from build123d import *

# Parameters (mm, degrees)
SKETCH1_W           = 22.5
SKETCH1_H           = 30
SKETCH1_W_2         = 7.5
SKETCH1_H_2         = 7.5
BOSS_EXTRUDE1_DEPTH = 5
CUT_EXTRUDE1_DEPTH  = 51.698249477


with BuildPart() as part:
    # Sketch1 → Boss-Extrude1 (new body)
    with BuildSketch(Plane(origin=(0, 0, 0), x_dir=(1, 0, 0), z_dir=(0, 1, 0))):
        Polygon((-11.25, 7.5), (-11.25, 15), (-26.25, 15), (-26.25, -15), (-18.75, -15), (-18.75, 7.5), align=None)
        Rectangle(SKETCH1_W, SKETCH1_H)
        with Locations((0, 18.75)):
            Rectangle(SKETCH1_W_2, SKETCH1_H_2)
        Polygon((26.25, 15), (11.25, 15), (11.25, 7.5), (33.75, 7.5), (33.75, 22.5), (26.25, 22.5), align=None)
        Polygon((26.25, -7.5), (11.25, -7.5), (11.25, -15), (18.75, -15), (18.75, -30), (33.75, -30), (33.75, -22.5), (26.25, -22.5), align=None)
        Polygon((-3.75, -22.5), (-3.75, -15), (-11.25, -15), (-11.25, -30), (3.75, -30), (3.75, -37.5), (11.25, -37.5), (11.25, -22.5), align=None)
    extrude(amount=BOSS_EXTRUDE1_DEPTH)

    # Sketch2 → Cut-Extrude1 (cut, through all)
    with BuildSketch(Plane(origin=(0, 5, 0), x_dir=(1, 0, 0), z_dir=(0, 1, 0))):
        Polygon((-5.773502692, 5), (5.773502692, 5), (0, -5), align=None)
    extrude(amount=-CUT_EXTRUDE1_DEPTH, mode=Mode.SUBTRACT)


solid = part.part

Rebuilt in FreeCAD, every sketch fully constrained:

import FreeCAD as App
import Part
import Sketcher

V = App.Vector
Q = App.Units.Quantity

doc = App.newDocument("Part")
params = doc.addObject("Spreadsheet::Sheet", "Params")
for row, (alias, value) in enumerate([
    ("sketch1_width", "15 mm"),
    ("pad1_length", "5 mm"),
], start=1):
    params.set(f"A{row}", alias)
    params.set(f"B{row}", "=" + value)
    params.setAlias(f"B{row}", alias)

body = doc.addObject("PartDesign::Body", "Body")

# Sketch on XZ plane
sketch1 = body.newObject("Sketcher::SketchObject", "Sketch")
sketch1.AttachmentSupport = (doc.getObject("XZ_Plane"), [""])
sketch1.MapMode = "FlatFace"
sketch1.addGeometry(Part.LineSegment(V(-26, -15, 0), V(-26, 15, 0)), False)
sketch1.addGeometry(Part.LineSegment(V(-26, 15, 0), V(-19, 15, 0)), False)
sketch1.addGeometry(Part.LineSegment(V(-19, 15, 0), V(-19, -8, 0)), False)
sketch1.addGeometry(Part.LineSegment(V(-19, -8, 0), V(-11, -8, 0)), False)
sketch1.addGeometry(Part.LineSegment(V(-11, -8, 0), V(-11, 30, 0)), False)
sketch1.addGeometry(Part.LineSegment(V(-11, 30, 0), V(4, 30, 0)), False)
sketch1.addGeometry(Part.LineSegment(V(4, 30, 0), V(4, 38, 0)), False)
sketch1.addGeometry(Part.LineSegment(V(4, 38, 0), V(11, 38, 0)), False)
sketch1.addGeometry(Part.LineSegment(V(11, 38, 0), V(11, 22, 0)), False)
sketch1.addGeometry(Part.LineSegment(V(11, 22, 0), V(-4, 22, 0)), False)
sketch1.addGeometry(Part.LineSegment(V(-4, 22, 0), V(-4, 15, 0)), False)
sketch1.addGeometry(Part.LineSegment(V(-4, 15, 0), V(19, 15, 0)), False)
sketch1.addGeometry(Part.LineSegment(V(19, 15, 0), V(19, 30, 0)), False)
sketch1.addGeometry(Part.LineSegment(V(19, 30, 0), V(34, 30, 0)), False)
sketch1.addGeometry(Part.LineSegment(V(34, 30, 0), V(34, 22, 0)), False)
sketch1.addGeometry(Part.LineSegment(V(34, 22, 0), V(26, 22, 0)), False)
sketch1.addGeometry(Part.LineSegment(V(26, 22, 0), V(26, 8, 0)), False)
sketch1.addGeometry(Part.LineSegment(V(26, 8, 0), V(11, 8, 0)), False)
sketch1.addGeometry(Part.LineSegment(V(11, 8, 0), V(11, -8, 0)), False)
sketch1.addGeometry(Part.LineSegment(V(11, -8, 0), V(34, -8, 0)), False)
sketch1.addGeometry(Part.LineSegment(V(34, -8, 0), V(34, -22, 0)), False)
sketch1.addGeometry(Part.LineSegment(V(34, -22, 0), V(26, -22, 0)), False)
sketch1.addGeometry(Part.LineSegment(V(26, -22, 0), V(26, -15, 0)), False)
sketch1.addGeometry(Part.LineSegment(V(26, -15, 0), V(4, -15, 0)), False)
sketch1.addGeometry(Part.LineSegment(V(4, -15, 0), V(4, -22, 0)), False)
sketch1.addGeometry(Part.LineSegment(V(4, -22, 0), V(-4, -22, 0)), False)
sketch1.addGeometry(Part.LineSegment(V(-4, -22, 0), V(-4, -15, 0)), False)
sketch1.addGeometry(Part.LineSegment(V(-4, -15, 0), V(-26, -15, 0)), False)
sketch1.addConstraint(Sketcher.Constraint("Coincident", 0, 2, 1, 1))
sketch1.addConstraint(Sketcher.Constraint("Coincident", 1, 2, 2, 1))
sketch1.addConstraint(Sketcher.Constraint("Coincident", 2, 2, 3, 1))
sketch1.addConstraint(Sketcher.Constraint("Coincident", 3, 2, 4, 1))
sketch1.addConstraint(Sketcher.Constraint("Coincident", 4, 2, 5, 1))
sketch1.addConstraint(Sketcher.Constraint("Coincident", 5, 2, 6, 1))
sketch1.addConstraint(Sketcher.Constraint("Coincident", 6, 2, 7, 1))
sketch1.addConstraint(Sketcher.Constraint("Coincident", 7, 2, 8, 1))
sketch1.addConstraint(Sketcher.Constraint("Coincident", 8, 2, 9, 1))
sketch1.addConstraint(Sketcher.Constraint("Coincident", 9, 2, 10, 1))
sketch1.addConstraint(Sketcher.Constraint("Coincident", 10, 2, 11, 1))
sketch1.addConstraint(Sketcher.Constraint("Coincident", 11, 2, 12, 1))
sketch1.addConstraint(Sketcher.Constraint("Coincident", 12, 2, 13, 1))
sketch1.addConstraint(Sketcher.Constraint("Coincident", 13, 2, 14, 1))
sketch1.addConstraint(Sketcher.Constraint("Coincident", 14, 2, 15, 1))
sketch1.addConstraint(Sketcher.Constraint("Coincident", 15, 2, 16, 1))
sketch1.addConstraint(Sketcher.Constraint("Coincident", 16, 2, 17, 1))
sketch1.addConstraint(Sketcher.Constraint("Coincident", 17, 2, 18, 1))
sketch1.addConstraint(Sketcher.Constraint("Coincident", 18, 2, 19, 1))
sketch1.addConstraint(Sketcher.Constraint("Coincident", 19, 2, 20, 1))
sketch1.addConstraint(Sketcher.Constraint("Coincident", 20, 2, 21, 1))
sketch1.addConstraint(Sketcher.Constraint("Coincident", 21, 2, 22, 1))
sketch1.addConstraint(Sketcher.Constraint("Coincident", 22, 2, 23, 1))
sketch1.addConstraint(Sketcher.Constraint("Coincident", 23, 2, 24, 1))
sketch1.addConstraint(Sketcher.Constraint("Coincident", 24, 2, 25, 1))
sketch1.addConstraint(Sketcher.Constraint("Coincident", 25, 2, 26, 1))
sketch1.addConstraint(Sketcher.Constraint("Coincident", 26, 2, 27, 1))
sketch1.addConstraint(Sketcher.Constraint("Coincident", 27, 2, 0, 1))
sketch1.addConstraint(Sketcher.Constraint("Vertical", 0))
sketch1.addConstraint(Sketcher.Constraint("Horizontal", 1))
sketch1.addConstraint(Sketcher.Constraint("Vertical", 2))
sketch1.addConstraint(Sketcher.Constraint("Horizontal", 3))
sketch1.addConstraint(Sketcher.Constraint("Vertical", 4))
sketch1.addConstraint(Sketcher.Constraint("Horizontal", 5))
sketch1.addConstraint(Sketcher.Constraint("Vertical", 6))
sketch1.addConstraint(Sketcher.Constraint("Horizontal", 7))
sketch1.addConstraint(Sketcher.Constraint("Vertical", 8))
sketch1.addConstraint(Sketcher.Constraint("Horizontal", 9))
sketch1.addConstraint(Sketcher.Constraint("Vertical", 10))
sketch1.addConstraint(Sketcher.Constraint("Horizontal", 11))
sketch1.addConstraint(Sketcher.Constraint("Vertical", 12))
sketch1.addConstraint(Sketcher.Constraint("Horizontal", 13))
sketch1.addConstraint(Sketcher.Constraint("Vertical", 14))
sketch1.addConstraint(Sketcher.Constraint("Horizontal", 15))
sketch1.addConstraint(Sketcher.Constraint("Vertical", 16))
sketch1.addConstraint(Sketcher.Constraint("Horizontal", 17))
sketch1.addConstraint(Sketcher.Constraint("Vertical", 18))
sketch1.addConstraint(Sketcher.Constraint("Horizontal", 19))
sketch1.addConstraint(Sketcher.Constraint("Vertical", 20))
sketch1.addConstraint(Sketcher.Constraint("Horizontal", 21))
sketch1.addConstraint(Sketcher.Constraint("Vertical", 22))
sketch1.addConstraint(Sketcher.Constraint("Horizontal", 23))
sketch1.addConstraint(Sketcher.Constraint("Vertical", 24))
sketch1.addConstraint(Sketcher.Constraint("Horizontal", 25))
sketch1.addConstraint(Sketcher.Constraint("Vertical", 26))
sketch1.addConstraint(Sketcher.Constraint("Horizontal", 27))
sketch1.addConstraint(Sketcher.Constraint("Symmetric", 3, 2, 17, 2, -1, 1))
sketch1.addConstraint(Sketcher.Constraint("Symmetric", 0, 2, 22, 2, -1, 1))
sketch1.addConstraint(Sketcher.Constraint("Symmetric", 10, 2, 23, 2, -1, 1))
sketch1.addConstraint(Sketcher.Constraint("Symmetric", 23, 2, 26, 2, -2))
sketch1.addConstraint(Sketcher.Constraint("Symmetric", 14, 2, 20, 2, -1))
sketch1.addConstraint(Sketcher.Constraint("Horizontal", 5, 2, 12, 2))
sketch1.addConstraint(Sketcher.Constraint("Horizontal", 9, 2, 14, 2))
sketch1.addConstraint(Sketcher.Constraint("Horizontal", 3, 2, 18, 2))
sketch1.addConstraint(Sketcher.Constraint("Horizontal", 21, 2, 24, 2))
sketch1.addConstraint(Sketcher.Constraint("Vertical", 8, 2, 17, 2))
sketch1.addConstraint(Sketcher.Constraint("Vertical", 16, 2, 21, 2))
sketch1.addConstraint(Sketcher.Constraint("Vertical", 6, 2, 23, 2))
sketch1.addConstraint(Sketcher.Constraint("Equal", 1, 3))
sketch1.addConstraint(Sketcher.Constraint("Equal", 3, 7))
sketch1.addConstraint(Sketcher.Constraint("Equal", 9, 13))
sketch1.addConstraint(Sketcher.Constraint("Equal", 7, 15))
sketch1.addConstraint(Sketcher.Constraint("Equal", 13, 17))
sketch1.addConstraint(Sketcher.Constraint("Equal", 27, 2))
sketch1.addConstraint(Sketcher.Constraint("Equal", 25, 6))
sketch1.addConstraint(Sketcher.Constraint("Equal", 17, 8))
sketch1.addConstraint(Sketcher.Constraint("Equal", 6, 10))
sketch1.addConstraint(Sketcher.Constraint("Equal", 12, 16))
sketch1.addConstraint(Sketcher.Constraint("DistanceX", 5, 1, 5, 2, 15.0))
sketch1.setExpression("Constraints[78]", "Params.sketch1_width")
pad1 = body.newObject("PartDesign::Pad", "Pad")
pad1.Profile = sketch1
pad1.setExpression("Length", "Params.pad1_length")
pad1.Reversed = True

# Sketch on XZ plane
sketch2 = body.newObject("Sketcher::SketchObject", "Sketch001")
sketch2.AttachmentSupport = (doc.getObject("XZ_Plane"), [""])
sketch2.MapMode = "FlatFace"
sketch2.AttachmentOffset = App.Placement(V(0, 0, -5), App.Rotation())
sketch2.addGeometry(Part.LineSegment(V(6, -5, 0), V(-6, -5, 0)), False)
sketch2.addGeometry(Part.LineSegment(V(-6, -5, 0), V(0, 5, 0)), False)
sketch2.addGeometry(Part.LineSegment(V(0, 5, 0), V(6, -5, 0)), False)
sketch2.addConstraint(Sketcher.Constraint("Coincident", 0, 2, 1, 1))
sketch2.addConstraint(Sketcher.Constraint("Coincident", 1, 2, 2, 1))
sketch2.addConstraint(Sketcher.Constraint("Coincident", 2, 2, 0, 1))
sketch2.addConstraint(Sketcher.Constraint("Horizontal", 0))
sketch2.addConstraint(Sketcher.Constraint("PointOnObject", 1, 2, -2))
sketch2.addConstraint(Sketcher.Constraint("Equal", 1, 2))
sketch2.addConstraint(Sketcher.Constraint("Angle", 1, Q("60 deg")))
sketch2.addConstraint(Sketcher.Constraint("DistanceY", 0, 2, -1, 1, 5.0))
sketch2.addConstraint(Sketcher.Constraint("DistanceY", -1, 1, 1, 2, 5.0))
pocket1 = body.newObject("PartDesign::Pocket", "Pocket")
pocket1.Profile = sketch2
pocket1.Type = "ThroughAll"
pocket1.Reversed = True

doc.recompute()
